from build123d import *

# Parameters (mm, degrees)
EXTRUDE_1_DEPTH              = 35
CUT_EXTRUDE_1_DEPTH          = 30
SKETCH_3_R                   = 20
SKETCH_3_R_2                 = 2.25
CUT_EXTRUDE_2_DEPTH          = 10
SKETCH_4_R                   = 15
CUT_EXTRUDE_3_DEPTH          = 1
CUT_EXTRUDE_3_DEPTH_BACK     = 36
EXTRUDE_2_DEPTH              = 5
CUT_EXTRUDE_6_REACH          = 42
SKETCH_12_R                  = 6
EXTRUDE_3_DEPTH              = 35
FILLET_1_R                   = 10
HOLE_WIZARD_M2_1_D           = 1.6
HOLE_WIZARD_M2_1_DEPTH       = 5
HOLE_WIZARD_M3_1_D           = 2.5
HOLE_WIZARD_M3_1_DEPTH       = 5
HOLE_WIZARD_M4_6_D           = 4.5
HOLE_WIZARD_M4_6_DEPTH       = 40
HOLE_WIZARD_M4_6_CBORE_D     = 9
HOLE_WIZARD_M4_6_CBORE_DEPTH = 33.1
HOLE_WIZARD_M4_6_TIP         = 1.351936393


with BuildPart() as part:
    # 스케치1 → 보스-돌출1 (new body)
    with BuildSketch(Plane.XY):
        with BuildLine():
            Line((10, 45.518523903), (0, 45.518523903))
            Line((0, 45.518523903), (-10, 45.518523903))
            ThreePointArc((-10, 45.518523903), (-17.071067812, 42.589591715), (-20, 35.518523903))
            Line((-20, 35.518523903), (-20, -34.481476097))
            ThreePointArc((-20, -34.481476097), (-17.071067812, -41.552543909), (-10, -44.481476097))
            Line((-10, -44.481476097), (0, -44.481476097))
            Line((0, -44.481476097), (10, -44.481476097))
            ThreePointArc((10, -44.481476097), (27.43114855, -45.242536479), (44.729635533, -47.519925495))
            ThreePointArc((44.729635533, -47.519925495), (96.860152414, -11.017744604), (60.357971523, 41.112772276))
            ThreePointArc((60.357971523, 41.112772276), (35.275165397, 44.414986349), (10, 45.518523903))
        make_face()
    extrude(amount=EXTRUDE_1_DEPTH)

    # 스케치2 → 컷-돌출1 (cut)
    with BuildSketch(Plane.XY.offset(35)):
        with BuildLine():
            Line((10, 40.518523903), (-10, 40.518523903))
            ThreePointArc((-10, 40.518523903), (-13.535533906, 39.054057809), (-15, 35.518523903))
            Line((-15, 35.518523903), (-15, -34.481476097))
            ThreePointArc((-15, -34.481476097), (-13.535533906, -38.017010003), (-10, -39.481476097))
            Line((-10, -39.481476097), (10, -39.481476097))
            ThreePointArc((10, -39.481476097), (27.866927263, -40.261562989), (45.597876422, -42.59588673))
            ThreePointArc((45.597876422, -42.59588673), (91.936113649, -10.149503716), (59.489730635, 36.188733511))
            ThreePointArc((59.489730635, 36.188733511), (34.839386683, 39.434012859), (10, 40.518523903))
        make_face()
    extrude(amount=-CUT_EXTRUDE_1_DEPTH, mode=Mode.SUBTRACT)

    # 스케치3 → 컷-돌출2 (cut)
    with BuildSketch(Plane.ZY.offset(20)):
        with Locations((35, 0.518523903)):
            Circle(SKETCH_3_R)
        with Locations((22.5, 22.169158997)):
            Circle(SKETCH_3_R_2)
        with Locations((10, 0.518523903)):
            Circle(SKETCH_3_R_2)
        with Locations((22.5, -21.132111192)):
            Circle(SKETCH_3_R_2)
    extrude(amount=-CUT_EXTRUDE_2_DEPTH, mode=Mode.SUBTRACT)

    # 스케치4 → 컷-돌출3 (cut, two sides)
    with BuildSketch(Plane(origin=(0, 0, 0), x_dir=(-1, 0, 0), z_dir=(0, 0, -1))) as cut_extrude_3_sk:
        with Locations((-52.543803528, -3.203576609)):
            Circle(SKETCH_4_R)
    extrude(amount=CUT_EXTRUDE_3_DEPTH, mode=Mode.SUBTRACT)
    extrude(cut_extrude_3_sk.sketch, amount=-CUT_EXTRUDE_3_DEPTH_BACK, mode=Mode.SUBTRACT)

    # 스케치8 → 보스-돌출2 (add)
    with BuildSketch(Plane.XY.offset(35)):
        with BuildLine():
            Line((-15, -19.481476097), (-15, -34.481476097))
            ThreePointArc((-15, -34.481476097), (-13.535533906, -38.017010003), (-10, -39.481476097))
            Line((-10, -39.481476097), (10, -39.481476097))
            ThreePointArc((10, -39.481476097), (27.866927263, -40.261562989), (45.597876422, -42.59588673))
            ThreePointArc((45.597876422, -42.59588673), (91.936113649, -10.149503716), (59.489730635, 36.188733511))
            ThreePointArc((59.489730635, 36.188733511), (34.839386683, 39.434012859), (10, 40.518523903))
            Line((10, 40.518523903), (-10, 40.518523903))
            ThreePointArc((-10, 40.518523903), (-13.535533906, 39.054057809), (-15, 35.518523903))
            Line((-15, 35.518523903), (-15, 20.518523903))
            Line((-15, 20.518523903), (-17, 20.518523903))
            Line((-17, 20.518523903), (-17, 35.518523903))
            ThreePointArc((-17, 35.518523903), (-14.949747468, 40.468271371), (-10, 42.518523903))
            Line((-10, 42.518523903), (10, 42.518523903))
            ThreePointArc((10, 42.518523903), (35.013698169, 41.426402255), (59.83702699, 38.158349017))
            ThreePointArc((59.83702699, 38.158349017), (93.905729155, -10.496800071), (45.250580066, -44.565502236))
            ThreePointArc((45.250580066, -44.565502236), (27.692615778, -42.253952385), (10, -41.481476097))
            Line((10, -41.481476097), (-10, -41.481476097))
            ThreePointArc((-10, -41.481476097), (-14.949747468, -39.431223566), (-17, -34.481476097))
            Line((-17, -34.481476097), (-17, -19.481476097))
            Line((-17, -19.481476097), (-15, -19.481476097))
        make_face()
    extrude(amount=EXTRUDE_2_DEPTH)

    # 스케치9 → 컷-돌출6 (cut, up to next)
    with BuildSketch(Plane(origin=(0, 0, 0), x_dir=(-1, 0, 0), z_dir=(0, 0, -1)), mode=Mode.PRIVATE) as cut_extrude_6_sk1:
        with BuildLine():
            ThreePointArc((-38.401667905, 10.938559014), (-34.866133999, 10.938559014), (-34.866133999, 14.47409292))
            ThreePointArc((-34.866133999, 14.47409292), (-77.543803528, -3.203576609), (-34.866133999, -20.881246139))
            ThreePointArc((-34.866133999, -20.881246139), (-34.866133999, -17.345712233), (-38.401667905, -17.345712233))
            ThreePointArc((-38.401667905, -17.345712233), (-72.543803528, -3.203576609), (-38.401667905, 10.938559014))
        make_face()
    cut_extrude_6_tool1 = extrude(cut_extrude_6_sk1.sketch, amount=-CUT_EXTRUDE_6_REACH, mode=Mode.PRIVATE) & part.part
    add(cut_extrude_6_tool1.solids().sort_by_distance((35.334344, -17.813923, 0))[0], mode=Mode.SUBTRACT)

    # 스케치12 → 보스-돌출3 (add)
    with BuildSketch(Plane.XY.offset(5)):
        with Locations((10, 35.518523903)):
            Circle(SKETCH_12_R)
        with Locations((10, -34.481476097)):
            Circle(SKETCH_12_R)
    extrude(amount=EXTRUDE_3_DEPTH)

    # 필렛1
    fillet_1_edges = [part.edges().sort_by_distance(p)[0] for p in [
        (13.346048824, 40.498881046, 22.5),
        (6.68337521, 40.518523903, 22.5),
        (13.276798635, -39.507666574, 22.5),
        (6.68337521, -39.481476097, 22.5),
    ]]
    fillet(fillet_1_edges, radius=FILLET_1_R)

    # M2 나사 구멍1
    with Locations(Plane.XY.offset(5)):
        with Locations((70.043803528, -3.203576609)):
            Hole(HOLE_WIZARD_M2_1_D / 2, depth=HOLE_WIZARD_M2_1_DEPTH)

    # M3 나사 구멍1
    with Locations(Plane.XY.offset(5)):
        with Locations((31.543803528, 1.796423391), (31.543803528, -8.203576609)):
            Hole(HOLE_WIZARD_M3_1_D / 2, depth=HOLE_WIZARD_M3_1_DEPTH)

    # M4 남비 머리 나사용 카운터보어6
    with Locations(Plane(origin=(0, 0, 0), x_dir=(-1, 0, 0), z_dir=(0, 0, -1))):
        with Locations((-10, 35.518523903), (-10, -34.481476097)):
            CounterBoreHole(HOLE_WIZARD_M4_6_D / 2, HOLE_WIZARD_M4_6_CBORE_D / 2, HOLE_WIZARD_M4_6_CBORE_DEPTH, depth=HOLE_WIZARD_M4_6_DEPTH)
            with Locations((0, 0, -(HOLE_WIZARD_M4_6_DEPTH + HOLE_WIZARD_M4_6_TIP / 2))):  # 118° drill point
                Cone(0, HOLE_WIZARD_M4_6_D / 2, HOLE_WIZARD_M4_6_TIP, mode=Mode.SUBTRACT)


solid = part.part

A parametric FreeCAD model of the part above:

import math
import FreeCAD as App
import Part
import Sketcher
Q = App.Units.Quantity


def edges_at(feature, points):
    """Names of the edges that pass closest to the given points."""
    edges = feature.Shape.Edges
    near = lambda p: min(range(len(edges)), key=lambda i: edges[i].distToShape(Part.Vertex(*p))[0])
    return sorted({f"Edge{near(p) + 1}" for p in points})

doc = App.newDocument("Part")
body = doc.addObject("PartDesign::Body", "Body")

# Sketch on XY plane
sketch1 = doc.addObject("Sketcher::SketchObject", "Sketch")
body.addObject(sketch1)
sketch1.AttachmentSupport = (doc.XY_Plane, [""])
sketch1.MapMode = "FlatFace"
sketch1.addGeometry(Part.LineSegment(App.Vector(10, 46, 0), App.Vector(-10, 46, 0)), False)
sketch1.addGeometry(Part.ArcOfCircle(Part.Circle(App.Vector(-10, 36, 0), App.Vector(0, 0, 1), 10), math.radians(90), math.radians(180)), False)
sketch1.addGeometry(Part.LineSegment(App.Vector(-20, 36, 0), App.Vector(-20, -34, 0)), False)
sketch1.addGeometry(Part.ArcOfCircle(Part.Circle(App.Vector(-10, -34, 0), App.Vector(0, 0, 1), 10), math.radians(180), math.radians(270)), False)
sketch1.addGeometry(Part.LineSegment(App.Vector(-10, -44, 0), App.Vector(10, -44, 0)), False)
sketch1.addGeometry(Part.ArcOfCircle(Part.Circle(App.Vector(10, -244, 0), App.Vector(0, 0, 1), 200), math.radians(80), math.radians(90)), False)
sketch1.addGeometry(Part.ArcOfCircle(Part.Circle(App.Vector(53, -3, 0), App.Vector(0, 0, 1), 45), math.radians(-100), math.radians(80)), False)
sketch1.addGeometry(Part.ArcOfCircle(Part.Circle(App.Vector(10, -244, 0), App.Vector(0, 0, 1), 290), math.radians(80), math.radians(90)), False)
sketch1.addConstraint(Sketcher.Constraint("Tangent", 0, 2, 1, 1))
sketch1.addConstraint(Sketcher.Constraint("Tangent", 1, 2, 2, 1))
sketch1.addConstraint(Sketcher.Constraint("Tangent", 2, 2, 3, 1))
sketch1.addConstraint(Sketcher.Constraint("Tangent", 3, 2, 4, 1))
sketch1.addConstraint(Sketcher.Constraint("Tangent", 4, 2, 5, 2))
sketch1.addConstraint(Sketcher.Constraint("Tangent", 5, 1, 6, 1))
sketch1.addConstraint(Sketcher.Constraint("Tangent", 6, 2, 7, 1))
sketch1.addConstraint(Sketcher.Constraint("Tangent", 7, 2, 0, 1))
sketch1.addConstraint(Sketcher.Constraint("Horizontal", 0))
sketch1.addConstraint(Sketcher.Constraint("Vertical", 2))
sketch1.addConstraint(Sketcher.Constraint("Horizontal", 4))
sketch1.addConstraint(Sketcher.Constraint("Coincident", 7, 3, 5, 3))
sketch1.addConstraint(Sketcher.Constraint("Equal", 1, 3))
sketch1.addConstraint(Sketcher.Constraint("Radius", 1, Q("10 mm")))
sketch1.addConstraint(Sketcher.Constraint("Radius", 5, Q("200 mm")))
sketch1.addConstraint(Sketcher.Constraint("Radius", 6, Q("45 mm")))
sketch1.addConstraint(Sketcher.Constraint("DistanceX", 0, 2, 0, 1, Q("20 mm")))
sketch1.addConstraint(Sketcher.Constraint("DistanceX", 1, 3, -1, 1, Q("10 mm")))
sketch1.addConstraint(Sketcher.Constraint("DistanceY", 3, 3, 6, 3, Q("31.277899 mm")))
sketch1.addConstraint(Sketcher.Constraint("DistanceY", -1, 1, 1, 3, Q("35.518524 mm")))
pad1 = doc.addObject("PartDesign::Pad", "Pad")
body.addObject(pad1)
pad1.Profile = sketch1
pad1.Length = 35

# Sketch on XY plane
sketch2 = doc.addObject("Sketcher::SketchObject", "Sketch001")
body.addObject(sketch2)
sketch2.AttachmentSupport = (doc.XY_Plane, [""])
sketch2.MapMode = "FlatFace"
sketch2.AttachmentOffset = App.Placement(App.Vector(0, 0, 35), App.Rotation())
sketch2.addGeometry(Part.LineSegment(App.Vector(10, 41, 0), App.Vector(-10, 41, 0)), False)
sketch2.addGeometry(Part.ArcOfCircle(Part.Circle(App.Vector(-10, 36, 0), App.Vector(0, 0, 1), 5), math.radians(90), math.radians(180)), False)
sketch2.addGeometry(Part.LineSegment(App.Vector(-15, 36, 0), App.Vector(-15, -34, 0)), False)
sketch2.addGeometry(Part.ArcOfCircle(Part.Circle(App.Vector(-10, -34, 0), App.Vector(0, 0, 1), 5), math.radians(180), math.radians(270)), False)
sketch2.addGeometry(Part.LineSegment(App.Vector(-10, -39, 0), App.Vector(10, -39, 0)), False)
sketch2.addGeometry(Part.ArcOfCircle(Part.Circle(App.Vector(10, -244, 0), App.Vector(0, 0, 1), 205), math.radians(80), math.radians(90)), False)
sketch2.addGeometry(Part.ArcOfCircle(Part.Circle(App.Vector(53, -3, 0), App.Vector(0, 0, 1), 40), math.radians(-100), math.radians(80)), False)
sketch2.addGeometry(Part.ArcOfCircle(Part.Circle(App.Vector(10, -244, 0), App.Vector(0, 0, 1), 285), math.radians(80), math.radians(90)), False)
sketch2.addConstraint(Sketcher.Constraint("Tangent", 0, 2, 1, 1))
sketch2.addConstraint(Sketcher.Constraint("Tangent", 1, 2, 2, 1))
sketch2.addConstraint(Sketcher.Constraint("Tangent", 2, 2, 3, 1))
sketch2.addConstraint(Sketcher.Constraint("Tangent", 3, 2, 4, 1))
sketch2.addConstraint(Sketcher.Constraint("Tangent", 4, 2, 5, 2))
sketch2.addConstraint(Sketcher.Constraint("Tangent", 5, 1, 6, 1))
sketch2.addConstraint(Sketcher.Constraint("Tangent", 6, 2, 7, 1))
sketch2.addConstraint(Sketcher.Constraint("Tangent", 7, 2, 0, 1))
sketch2.addConstraint(Sketcher.Constraint("Horizontal", 0))
sketch2.addConstraint(Sketcher.Constraint("Vertical", 2))
sketch2.addConstraint(Sketcher.Constraint("Horizontal", 4))
sketch2.addConstraint(Sketcher.Constraint("Coincident", 7, 3, 5, 3))
sketch2.addConstraint(Sketcher.Constraint("Equal", 1, 3))
sketch2.addConstraint(Sketcher.Constraint("Radius", 1, Q("5 mm")))
sketch2.addConstraint(Sketcher.Constraint("Radius", 5, Q("205 mm")))
sketch2.addConstraint(Sketcher.Constraint("Radius", 6, Q("40 mm")))
sketch2.addConstraint(Sketcher.Constraint("DistanceX", 0, 2, 0, 1, Q("20 mm")))
sketch2.addConstraint(Sketcher.Constraint("DistanceX", 1, 3, -1, 1, Q("10 mm")))
sketch2.addConstraint(Sketcher.Constraint("DistanceY", 3, 3, 6, 3, Q("31.277899 mm")))
sketch2.addConstraint(Sketcher.Constraint("DistanceY", -1, 1, 1, 3, Q("35.518524 mm")))
pocket1 = doc.addObject("PartDesign::Pocket", "Pocket")
body.addObject(pocket1)
pocket1.Profile = sketch2
pocket1.Length = 30

# Sketch on YZ plane
sketch3 = doc.addObject("Sketcher::SketchObject", "Sketch002")
body.addObject(sketch3)
sketch3.AttachmentSupport = (doc.YZ_Plane, [""])
sketch3.MapMode = "FlatFace"
sketch3.AttachmentOffset = App.Placement(App.Vector(0, 0, -20), App.Rotation())
sketch3.addGeometry(Part.Circle(App.Vector(0.5, 35, 0), App.Vector(0, 0, 1), 20), False)
sketch3.addGeometry(Part.Circle(App.Vector(22.2, 22.5, 0), App.Vector(0, 0, 1), 2.2), False)
sketch3.addGeometry(Part.Circle(App.Vector(0.5, 10, 0), App.Vector(0, 0, 1), 2.2), False)
sketch3.addGeometry(Part.Circle(App.Vector(-21.1, 22.5, 0), App.Vector(0, 0, 1), 2.2), False)
sketch3.addConstraint(Sketcher.Constraint("Equal", 1, 2))
sketch3.addConstraint(Sketcher.Constraint("Equal", 2, 3))
sketch3.addConstraint(Sketcher.Constraint("Horizontal", 1, 3, 3, 3))
sketch3.addConstraint(Sketcher.Constraint("Vertical", 0, 3, 2, 3))
sketch3.addConstraint(Sketcher.Constraint("Diameter", 0, Q("40 mm")))
sketch3.addConstraint(Sketcher.Constraint("Diameter", 1, Q("4.5 mm")))
sketch3.addConstraint(Sketcher.Constraint("DistanceY", -1, 1, 0, 3, Q("35 mm")))
sketch3.addConstraint(Sketcher.Constraint("DistanceY", -1, 1, 2, 3, Q("10 mm")))
sketch3.addConstraint(Sketcher.Constraint("DistanceY", -1, 1, 1, 3, Q("22.5 mm")))
sketch3.addConstraint(Sketcher.Constraint("DistanceX", -1, 1, 1, 3, Q("22.169159 mm")))
sketch3.addConstraint(Sketcher.Constraint("DistanceX", 3, 3, -1, 1, Q("21.132111 mm")))
sketch3.addConstraint(Sketcher.Constraint("DistanceX", -1, 1, 0, 3, Q("0.518524 mm")))
pocket2 = doc.addObject("PartDesign::Pocket", "Pocket001")
body.addObject(pocket2)
pocket2.Profile = sketch3
pocket2.Length = 10
pocket2.Reversed = True

# Sketch on XY plane
sketch4 = doc.addObject("Sketcher::SketchObject", "Sketch003")
body.addObject(sketch4)
sketch4.AttachmentSupport = (doc.XY_Plane, [""])
sketch4.MapMode = "FlatFace"
sketch4.addGeometry(Part.Circle(App.Vector(53, -3, 0), App.Vector(0, 0, 1), 15), False)
sketch4.addConstraint(Sketcher.Constraint("Diameter", 0, Q("30 mm")))
sketch4.addConstraint(Sketcher.Constraint("DistanceX", -1, 1, 0, 3, Q("52.543804 mm")))
sketch4.addConstraint(Sketcher.Constraint("DistanceY", 0, 3, -1, 1, Q("3.203577 mm")))
pocket3 = doc.addObject("PartDesign::Pocket", "Pocket002")
body.addObject(pocket3)
pocket3.Profile = sketch4
pocket3.Type = "ThroughAll"
pocket3.Midplane = True

# Sketch on XY plane
sketch5 = doc.addObject("Sketcher::SketchObject", "Sketch004")
body.addObject(sketch5)
sketch5.AttachmentSupport = (doc.XY_Plane, [""])
sketch5.MapMode = "FlatFace"
sketch5.AttachmentOffset = App.Placement(App.Vector(0, 0, 35), App.Rotation())
sketch5.addGeometry(Part.LineSegment(App.Vector(-15, -34.5, 0), App.Vector(-15, -19.5, 0)), False)
sketch5.addGeometry(Part.LineSegment(App.Vector(-15, -19.5, 0), App.Vector(-17, -19.5, 0)), False)
sketch5.addGeometry(Part.LineSegment(App.Vector(-17, -19.5, 0), App.Vector(-17, -34.5, 0)), False)
sketch5.addGeometry(Part.ArcOfCircle(Part.Circle(App.Vector(-10, -34.5, 0), App.Vector(0, 0, 1), 7), math.radians(180), math.radians(270)), False)
sketch5.addGeometry(Part.LineSegment(App.Vector(-10, -41.5, 0), App.Vector(10, -41.5, 0)), False)
sketch5.addGeometry(Part.ArcOfCircle(Part.Circle(App.Vector(10, -244.5, 0), App.Vector(0, 0, 1), 203), math.radians(80), math.radians(90)), False)
sketch5.addGeometry(Part.ArcOfCircle(Part.Circle(App.Vector(52.5, -3.2, 0), App.Vector(0, 0, 1), 42), math.radians(-100), math.radians(80)), False)
sketch5.addGeometry(Part.ArcOfCircle(Part.Circle(App.Vector(10, -244.5, 0), App.Vector(0, 0, 1), 287), math.radians(80), math.radians(90)), False)
sketch5.addGeometry(Part.LineSegment(App.Vector(10, 42.5, 0), App.Vector(-10, 42.5, 0)), False)
sketch5.addGeometry(Part.ArcOfCircle(Part.Circle(App.Vector(-10, 35.5, 0), App.Vector(0, 0, 1), 7), math.radians(90), math.radians(180)), False)
sketch5.addGeometry(Part.LineSegment(App.Vector(-17, 35.5, 0), App.Vector(-17, 20.5, 0)), False)
sketch5.addGeometry(Part.LineSegment(App.Vector(-17, 20.5, 0), App.Vector(-15, 20.5, 0)), False)
sketch5.addGeometry(Part.LineSegment(App.Vector(-15, 20.5, 0), App.Vector(-15, 35.5, 0)), False)
sketch5.addGeometry(Part.ArcOfCircle(Part.Circle(App.Vector(-10, 35.5, 0), App.Vector(0, 0, 1), 5), math.radians(90), math.radians(180)), False)
sketch5.addGeometry(Part.LineSegment(App.Vector(-10, 40.5, 0), App.Vector(10, 40.5, 0)), False)
sketch5.addGeometry(Part.ArcOfCircle(Part.Circle(App.Vector(10, -244.5, 0), App.Vector(0, 0, 1), 285), math.radians(80), math.radians(90)), False)
sketch5.addGeometry(Part.ArcOfCircle(Part.Circle(App.Vector(52.5, -3.2, 0), App.Vector(0, 0, 1), 40), math.radians(-100), math.radians(80)), False)
sketch5.addGeometry(Part.ArcOfCircle(Part.Circle(App.Vector(10, -244.5, 0), App.Vector(0, 0, 1), 205), math.radians(80), math.radians(90)), False)
sketch5.addGeometry(Part.LineSegment(App.Vector(10, -39.5, 0), App.Vector(-10, -39.5, 0)), False)
sketch5.addGeometry(Part.ArcOfCircle(Part.Circle(App.Vector(-10, -34.5, 0), App.Vector(0, 0, 1), 5), math.radians(180), math.radians(270)), False)
sketch5.addConstraint(Sketcher.Constraint("Coincident", 0, 2, 1, 1))
sketch5.addConstraint(Sketcher.Constraint("Coincident", 1, 2, 2, 1))
sketch5.addConstraint(Sketcher.Constraint("Tangent", 2, 2, 3, 1))
sketch5.addConstraint(Sketcher.Constraint("Tangent", 3, 2, 4, 1))
sketch5.addConstraint(Sketcher.Constraint("Tangent", 4, 2, 5, 2))
sketch5.addConstraint(Sketcher.Constraint("Tangent", 5, 1, 6, 1))
sketch5.addConstraint(Sketcher.Constraint("Tangent", 6, 2, 7, 1))
sketch5.addConstraint(Sketcher.Constraint("Tangent", 7, 2, 8, 1))
sketch5.addConstraint(Sketcher.Constraint("Tangent", 8, 2, 9, 1))
sketch5.addConstraint(Sketcher.Constraint("Tangent", 9, 2, 10, 1))
sketch5.addConstraint(Sketcher.Constraint("Coincident", 10, 2, 11, 1))
sketch5.addConstraint(Sketcher.Constraint("Coincident", 11, 2, 12, 1))
sketch5.addConstraint(Sketcher.Constraint("Tangent", 12, 2, 13, 2))
sketch5.addConstraint(Sketcher.Constraint("Tangent", 13, 1, 14, 1))
sketch5.addConstraint(Sketcher.Constraint("Tangent", 14, 2, 15, 2))
sketch5.addConstraint(Sketcher.Constraint("Tangent", 15, 1, 16, 2))
sketch5.addConstraint(Sketcher.Constraint("Tangent", 16, 1, 17, 1))
sketch5.addConstraint(Sketcher.Constraint("Tangent", 17, 2, 18, 1))
sketch5.addConstraint(Sketcher.Constraint("Tangent", 18, 2, 19, 2))
sketch5.addConstraint(Sketcher.Constraint("Tangent", 19, 1, 0, 1))
sketch5.addConstraint(Sketcher.Constraint("Vertical", 0))
sketch5.addConstraint(Sketcher.Constraint("Horizontal", 1))
sketch5.addConstraint(Sketcher.Constraint("Vertical", 2))
sketch5.addConstraint(Sketcher.Constraint("Horizontal", 4))
sketch5.addConstraint(Sketcher.Constraint("Horizontal", 8))
sketch5.addConstraint(Sketcher.Constraint("Vertical", 10))
sketch5.addConstraint(Sketcher.Constraint("Horizontal", 11))
sketch5.addConstraint(Sketcher.Constraint("Vertical", 12))
sketch5.addConstraint(Sketcher.Constraint("Horizontal", 14))
sketch5.addConstraint(Sketcher.Constraint("Horizontal", 18))
sketch5.addConstraint(Sketcher.Constraint("Coincident", 7, 3, 5, 3))
sketch5.addConstraint(Sketcher.Constraint("Coincident", 13, 3, 9, 3))
sketch5.addConstraint(Sketcher.Constraint("Coincident", 15, 3, 5, 3))
sketch5.addConstraint(Sketcher.Constraint("Coincident", 16, 3, 6, 3))
sketch5.addConstraint(Sketcher.Constraint("Coincident", 17, 3, 5, 3))
sketch5.addConstraint(Sketcher.Constraint("Coincident", 19, 3, 3, 3))
sketch5.addConstraint(Sketcher.Constraint("Equal", 3, 9))
sketch5.addConstraint(Sketcher.Constraint("Vertical", 3, 3, 9, 3))
sketch5.addConstraint(Sketcher.Constraint("Equal", 2, 10))
sketch5.addConstraint(Sketcher.Constraint("Radius", 3, Q("7 mm")))
sketch5.addConstraint(Sketcher.Constraint("Radius", 5, Q("203 mm")))
sketch5.addConstraint(Sketcher.Constraint("Radius", 6, Q("42 mm")))
sketch5.addConstraint(Sketcher.Constraint("Radius", 13, Q("5 mm")))
sketch5.addConstraint(Sketcher.Constraint("DistanceX", 4, 1, 4, 2, Q("20 mm")))
sketch5.addConstraint(Sketcher.Constraint("DistanceY", 0, 1, 0, 2, Q("15 mm")))
sketch5.addConstraint(Sketcher.Constraint("DistanceX", 3, 3, -1, 1, Q("10 mm")))
sketch5.addConstraint(Sketcher.Constraint("DistanceY", 3, 3, 6, 3, Q("31.277899 mm")))
sketch5.addConstraint(Sketcher.Constraint("DistanceY", -1, 1, 6, 2, Q("38.158349 mm")))
pad2 = doc.addObject("PartDesign::Pad", "Pad001")
body.addObject(pad2)
pad2.Profile = sketch5
pad2.Length = 5

# Sketch on XY plane
sketch6 = doc.addObject("Sketcher::SketchObject", "Sketch005")
body.addObject(sketch6)
sketch6.AttachmentSupport = (doc.XY_Plane, [""])
sketch6.MapMode = "FlatFace"
sketch6.addGeometry(Part.ArcOfCircle(Part.Circle(App.Vector(36.6, 12.7, 0), App.Vector(0, 0, 1), 2.5), math.radians(135), math.radians(315)), False)
sketch6.addGeometry(Part.ArcOfCircle(Part.Circle(App.Vector(52.5, -3.2, 0), App.Vector(0, 0, 1), 25), math.radians(-135), math.radians(135)), False)
sketch6.addGeometry(Part.ArcOfCircle(Part.Circle(App.Vector(36.6, -19.1, 0), App.Vector(0, 0, 1), 2.5), math.radians(45), math.radians(225)), False)
sketch6.addGeometry(Part.ArcOfCircle(Part.Circle(App.Vector(52.5, -3.2, 0), App.Vector(0, 0, 1), 20), math.radians(-135), math.radians(135)), False)
sketch6.addConstraint(Sketcher.Constraint("Tangent", 0, 1, 1, 2))
sketch6.addConstraint(Sketcher.Constraint("Tangent", 1, 1, 2, 2))
sketch6.addConstraint(Sketcher.Constraint("Tangent", 2, 1, 3, 1))
sketch6.addConstraint(Sketcher.Constraint("Tangent", 3, 2, 0, 2))
sketch6.addConstraint(Sketcher.Constraint("Coincident", 3, 3, 1, 3))
sketch6.addConstraint(Sketcher.Constraint("Vertical", 0, 3, 2, 3))
sketch6.addConstraint(Sketcher.Constraint("Radius", 1, Q("25 mm")))
sketch6.addConstraint(Sketcher.Constraint("Radius", 3, Q("20 mm")))
sketch6.addConstraint(Sketcher.Constraint("DistanceX", -1, 1, 0, 3, Q("36.633901 mm")))
sketch6.addConstraint(Sketcher.Constraint("DistanceY", 2, 3, -1, 1, Q("19.113479 mm")))
sketch6.addConstraint(Sketcher.Constraint("DistanceY", -1, 1, 3, 2, Q("10.938559 mm")))
pocket4 = doc.addObject("PartDesign::Pocket", "Pocket003")
body.addObject(pocket4)
pocket4.Profile = sketch6
pocket4.Length = 5
pocket4.Reversed = True

# Sketch on XY plane
sketch7 = doc.addObject("Sketcher::SketchObject", "Sketch006")
body.addObject(sketch7)
sketch7.AttachmentSupport = (doc.XY_Plane, [""])
sketch7.MapMode = "FlatFace"
sketch7.AttachmentOffset = App.Placement(App.Vector(0, 0, 5), App.Rotation())
sketch7.addGeometry(Part.Circle(App.Vector(10, 36, 0), App.Vector(0, 0, 1), 6), False)
sketch7.addGeometry(Part.Circle(App.Vector(10, -34, 0), App.Vector(0, 0, 1), 6), False)
sketch7.addConstraint(Sketcher.Constraint("Equal", 0, 1))
sketch7.addConstraint(Sketcher.Constraint("Vertical", 0, 3, 1, 3))
sketch7.addConstraint(Sketcher.Constraint("Diameter", 0, Q("12 mm")))
sketch7.addConstraint(Sketcher.Constraint("DistanceX", -1, 1, 0, 3, Q("10 mm")))
sketch7.addConstraint(Sketcher.Constraint("DistanceY", 1, 3, 0, 3, Q("70 mm")))
sketch7.addConstraint(Sketcher.Constraint("DistanceY", -1, 1, 0, 3, Q("35.518524 mm")))
pad3 = doc.addObject("PartDesign::Pad", "Pad002")
body.addObject(pad3)
pad3.Profile = sketch7
pad3.Length = 35
doc.recompute()

fillet = doc.addObject("PartDesign::Fillet", "Fillet")
body.addObject(fillet)
fillet.Base = (pad3, edges_at(pad3, [
    (13.346, 40.499, 22.5),
    (6.683, 40.519, 22.5),
    (13.277, -39.508, 22.5),
    (6.683, -39.481, 22.5),
]))
fillet.Radius = 10

# Sketch on XY plane
sketch8 = doc.addObject("Sketcher::SketchObject", "Sketch007")
body.addObject(sketch8)
sketch8.AttachmentSupport = (doc.XY_Plane, [""])
sketch8.MapMode = "FlatFace"
sketch8.AttachmentOffset = App.Placement(App.Vector(0, 0, 5), App.Rotation())
sketch8.addGeometry(Part.Circle(App.Vector(70, -3.2, 0), App.Vector(0, 0, 1), 0.8), False)
sketch8.addConstraint(Sketcher.Constraint("Diameter", 0, Q("1.6 mm")))
sketch8.addConstraint(Sketcher.Constraint("DistanceX", -1, 1, 0, 3, Q("70.043804 mm")))
sketch8.addConstraint(Sketcher.Constraint("DistanceY", 0, 3, -1, 1, Q("3.203577 mm")))
doc.recompute()
hole = doc.addObject("PartDesign::Hole", "Hole")
body.addObject(hole)
hole.Profile = sketch8
hole.ThreadType = "None"
hole.Diameter = 1.6
hole.DepthType = "Dimension"
hole.Depth = 5
hole.DrillPoint = "Flat"

# Sketch on XY plane
sketch9 = doc.addObject("Sketcher::SketchObject", "Sketch008")
body.addObject(sketch9)
sketch9.AttachmentSupport = (doc.XY_Plane, [""])
sketch9.MapMode = "FlatFace"
sketch9.AttachmentOffset = App.Placement(App.Vector(0, 0, 5), App.Rotation())
sketch9.addGeometry(Part.Circle(App.Vector(31.5, 1.8, 0), App.Vector(0, 0, 1), 1.2), False)
sketch9.addGeometry(Part.Circle(App.Vector(31.5, -8.2, 0), App.Vector(0, 0, 1), 1.2), False)
sketch9.addConstraint(Sketcher.Constraint("Equal", 0, 1))
sketch9.addConstraint(Sketcher.Constraint("Vertical", 0, 3, 1, 3))
sketch9.addConstraint(Sketcher.Constraint("Diameter", 0, Q("2.5 mm")))
sketch9.addConstraint(Sketcher.Constraint("DistanceY", 1, 3, 0, 3, Q("10 mm")))
sketch9.addConstraint(Sketcher.Constraint("DistanceX", -1, 1, 0, 3, Q("31.543804 mm")))
sketch9.addConstraint(Sketcher.Constraint("DistanceY", -1, 1, 0, 3, Q("1.796423 mm")))
doc.recompute()
hole2 = doc.addObject("PartDesign::Hole", "Hole001")
body.addObject(hole2)
hole2.Profile = sketch9
hole2.ThreadType = "None"
hole2.Diameter = 2.5
hole2.DepthType = "Dimension"
hole2.Depth = 5
hole2.DrillPoint = "Flat"

# Sketch on XY plane
sketch10 = doc.addObject("Sketcher::SketchObject", "Sketch009")
body.addObject(sketch10)
sketch10.AttachmentSupport = (doc.XY_Plane, [""])
sketch10.MapMode = "FlatFace"
sketch10.addGeometry(Part.Circle(App.Vector(10, 35.5, 0), App.Vector(0, 0, 1), 2.2), False)
sketch10.addGeometry(Part.Circle(App.Vector(10, -34.5, 0), App.Vector(0, 0, 1), 2.2), False)
sketch10.addConstraint(Sketcher.Constraint("Equal", 0, 1))
sketch10.addConstraint(Sketcher.Constraint("Vertical", 0, 3, 1, 3))
sketch10.addConstraint(Sketcher.Constraint("Diameter", 0, Q("4.5 mm")))
sketch10.addConstraint(Sketcher.Constraint("DistanceX", -1, 1, 0, 3, Q("10 mm")))
sketch10.addConstraint(Sketcher.Constraint("DistanceY", 1, 3, 0, 3, Q("70 mm")))
sketch10.addConstraint(Sketcher.Constraint("DistanceY", -1, 1, 0, 3, Q("35.518524 mm")))
doc.recompute()
hole3 = doc.addObject("PartDesign::Hole", "Hole002")
body.addObject(hole3)
hole3.Profile = sketch10
hole3.ThreadType = "None"
hole3.Diameter = 4.5
hole3.DepthType = "Dimension"
hole3.Depth = 40
hole3.DrillPoint = "Angled"
hole3.DrillPointAngle = 118
hole3.HoleCutType = "Counterbore"
hole3.HoleCutDiameter = 9
hole3.HoleCutDepth = 33.1
hole3.Reversed = True

doc.recompute()
